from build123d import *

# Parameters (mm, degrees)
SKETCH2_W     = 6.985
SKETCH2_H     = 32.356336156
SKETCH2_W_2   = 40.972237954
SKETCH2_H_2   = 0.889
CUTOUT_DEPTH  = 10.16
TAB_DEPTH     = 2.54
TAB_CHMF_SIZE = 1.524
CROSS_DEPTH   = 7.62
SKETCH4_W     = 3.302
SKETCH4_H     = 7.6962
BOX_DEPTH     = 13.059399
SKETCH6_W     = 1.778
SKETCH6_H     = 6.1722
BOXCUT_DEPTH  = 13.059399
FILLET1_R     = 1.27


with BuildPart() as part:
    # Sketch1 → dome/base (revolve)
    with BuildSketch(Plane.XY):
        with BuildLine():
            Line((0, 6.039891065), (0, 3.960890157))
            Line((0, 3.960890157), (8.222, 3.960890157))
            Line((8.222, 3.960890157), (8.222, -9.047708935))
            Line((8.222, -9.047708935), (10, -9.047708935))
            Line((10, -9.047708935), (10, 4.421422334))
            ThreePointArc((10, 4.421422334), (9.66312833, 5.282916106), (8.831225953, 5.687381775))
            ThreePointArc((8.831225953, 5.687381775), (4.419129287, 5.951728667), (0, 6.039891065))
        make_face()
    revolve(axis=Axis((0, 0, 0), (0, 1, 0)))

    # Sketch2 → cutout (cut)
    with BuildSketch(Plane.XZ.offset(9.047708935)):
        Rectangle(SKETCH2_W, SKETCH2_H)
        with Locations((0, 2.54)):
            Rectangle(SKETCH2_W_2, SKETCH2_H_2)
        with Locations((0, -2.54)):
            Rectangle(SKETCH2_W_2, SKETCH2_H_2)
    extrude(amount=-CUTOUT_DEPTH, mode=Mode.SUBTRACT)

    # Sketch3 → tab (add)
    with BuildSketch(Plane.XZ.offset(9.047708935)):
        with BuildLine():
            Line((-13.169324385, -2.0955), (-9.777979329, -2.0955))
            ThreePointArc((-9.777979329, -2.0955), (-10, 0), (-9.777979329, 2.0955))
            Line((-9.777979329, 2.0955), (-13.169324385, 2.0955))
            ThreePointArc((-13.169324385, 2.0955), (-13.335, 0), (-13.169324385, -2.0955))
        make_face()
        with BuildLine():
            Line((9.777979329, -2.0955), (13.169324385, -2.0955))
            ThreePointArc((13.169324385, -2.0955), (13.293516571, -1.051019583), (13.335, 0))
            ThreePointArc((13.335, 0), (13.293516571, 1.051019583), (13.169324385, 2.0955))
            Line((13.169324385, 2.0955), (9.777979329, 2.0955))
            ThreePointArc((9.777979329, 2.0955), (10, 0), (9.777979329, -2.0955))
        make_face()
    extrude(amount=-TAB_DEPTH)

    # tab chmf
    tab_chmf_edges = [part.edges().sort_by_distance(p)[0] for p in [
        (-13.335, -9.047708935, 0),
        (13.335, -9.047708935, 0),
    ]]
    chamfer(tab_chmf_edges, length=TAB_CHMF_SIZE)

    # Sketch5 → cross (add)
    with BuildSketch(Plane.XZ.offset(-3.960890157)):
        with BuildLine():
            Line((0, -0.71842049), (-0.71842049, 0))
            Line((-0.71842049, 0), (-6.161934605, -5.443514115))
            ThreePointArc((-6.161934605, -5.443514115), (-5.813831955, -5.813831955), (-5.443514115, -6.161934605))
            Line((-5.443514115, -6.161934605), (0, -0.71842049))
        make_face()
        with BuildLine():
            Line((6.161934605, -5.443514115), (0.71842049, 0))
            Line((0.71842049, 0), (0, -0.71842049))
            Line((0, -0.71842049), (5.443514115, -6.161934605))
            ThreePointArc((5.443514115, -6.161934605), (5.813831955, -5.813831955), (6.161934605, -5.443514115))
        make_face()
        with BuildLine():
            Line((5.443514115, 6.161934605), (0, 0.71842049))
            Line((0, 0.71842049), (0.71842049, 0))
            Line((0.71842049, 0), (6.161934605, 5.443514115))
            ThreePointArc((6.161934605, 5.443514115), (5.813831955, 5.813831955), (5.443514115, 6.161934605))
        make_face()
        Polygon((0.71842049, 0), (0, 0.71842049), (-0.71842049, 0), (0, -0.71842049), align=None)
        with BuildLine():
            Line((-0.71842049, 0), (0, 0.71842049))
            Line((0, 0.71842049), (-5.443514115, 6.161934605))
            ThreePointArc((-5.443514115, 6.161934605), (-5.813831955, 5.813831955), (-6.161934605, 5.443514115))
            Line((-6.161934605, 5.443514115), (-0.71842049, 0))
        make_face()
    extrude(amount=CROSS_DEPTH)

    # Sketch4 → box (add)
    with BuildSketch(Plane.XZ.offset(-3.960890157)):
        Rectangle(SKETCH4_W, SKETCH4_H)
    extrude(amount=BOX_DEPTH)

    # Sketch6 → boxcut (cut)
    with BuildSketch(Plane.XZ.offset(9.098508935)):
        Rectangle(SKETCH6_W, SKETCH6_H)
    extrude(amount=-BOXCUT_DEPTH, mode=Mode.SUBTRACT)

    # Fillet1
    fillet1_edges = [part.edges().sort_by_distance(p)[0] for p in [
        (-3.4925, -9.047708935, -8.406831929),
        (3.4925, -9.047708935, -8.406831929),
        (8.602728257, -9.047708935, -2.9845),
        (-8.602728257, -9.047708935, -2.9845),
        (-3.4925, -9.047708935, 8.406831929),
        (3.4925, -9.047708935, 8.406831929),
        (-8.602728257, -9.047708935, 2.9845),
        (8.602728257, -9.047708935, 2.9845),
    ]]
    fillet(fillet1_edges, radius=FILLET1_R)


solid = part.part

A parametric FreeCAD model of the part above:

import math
import FreeCAD as App
import Part
import Sketcher

V = App.Vector
Q = App.Units.Quantity


def edges_at(feature, points):
    """Names of the edges that pass closest to the given points."""
    edges = feature.Shape.Edges
    near = lambda p: min(range(len(edges)), key=lambda i: edges[i].distToShape(Part.Vertex(*p))[0])
    return sorted({f"Edge{near(p) + 1}" for p in points})


def add_polygon(sketch, points):
    """Adds a closed chain of lines whose ends are joined by coincident constraints."""
    first, n = sketch.GeometryCount, len(points)
    for a, b in zip(points, points[1:] + points[:1]):
        sketch.addGeometry(Part.LineSegment(App.Vector(*a, 0), App.Vector(*b, 0)), False)
    for i in range(n):
        sketch.addConstraint(Sketcher.Constraint("Coincident", first + i, 2, first + (i + 1) % n, 1))

doc = App.newDocument("Part")
body = doc.addObject("PartDesign::Body", "Body")

sketch1 = doc.addObject("Sketcher::SketchObject", "Sketch")
body.addObject(sketch1)
sketch1.AttachmentSupport = (doc.XY_Plane, [""])
sketch1.MapMode = "FlatFace"
sketch1.addGeometry([
    Part.LineSegment(V(0, 6, 0), V(0, 4, 0)),
    Part.LineSegment(V(0, 4, 0), V(8.2, 4, 0)),
    Part.LineSegment(V(8.2, 4, 0), V(8.2, -9, 0)),
    Part.LineSegment(V(8.2, -9, 0), V(10, -9, 0)),
    Part.LineSegment(V(10, -9, 0), V(10, 4.4, 0)),
    Part.ArcOfCircle(Part.Circle(V(8.7, 4.4, 0), V(0, 0, 1), 1.3), math.radians(0), math.radians(85)),
    Part.ArcOfCircle(Part.Circle(V(0, -104.8, 0), V(0, 0, 1), 110.8), math.radians(85.43), math.radians(90)),
], False)
sketch1.addConstraint([
    Sketcher.Constraint("Coincident", 0, 2, 1, 1),
    Sketcher.Constraint("Coincident", 1, 2, 2, 1),
    Sketcher.Constraint("Coincident", 2, 2, 3, 1),
    Sketcher.Constraint("Coincident", 3, 2, 4, 1),
    Sketcher.Constraint("Tangent", 4, 2, 5, 1),
    Sketcher.Constraint("Tangent", 5, 2, 6, 1),
    Sketcher.Constraint("Coincident", 6, 2, 0, 1),
    Sketcher.Constraint("Vertical", 0),
    Sketcher.Constraint("Horizontal", 1),
    Sketcher.Constraint("Vertical", 2),
    Sketcher.Constraint("Horizontal", 3),
    Sketcher.Constraint("Vertical", 4),
    Sketcher.Constraint("PointOnObject", 6, 3, -2),
    Sketcher.Constraint("PointOnObject", 0, 2, -2),
    Sketcher.Constraint("Radius", 5, Q("0.05 in")),
    Sketcher.Constraint("DistanceX", 3, 1, 3, 2, Q("0.07 in")),
    Sketcher.Constraint("DistanceX", 1, 1, 1, 2, Q("8.222 mm")),
    Sketcher.Constraint("DistanceY", 0, 2, 0, 1, Q("2.079001 mm")),
    Sketcher.Constraint("DistanceY", 2, 2, 2, 1, Q("13.008599 mm")),
    Sketcher.Constraint("Radius", 6, Q("110.798235 mm")),
    Sketcher.Constraint("DistanceY", -1, 1, 0, 2, Q("3.96089 mm")),
])
revolution = doc.addObject("PartDesign::Revolution", "Revolution")
body.addObject(revolution)
revolution.Profile = sketch1
revolution.ReferenceAxis = (sketch1, ["V_Axis"])
revolution.Angle = 360

sketch2 = doc.addObject("Sketcher::SketchObject", "Sketch001")
body.addObject(sketch2)
sketch2.AttachmentSupport = (doc.XZ_Plane, [""])
sketch2.MapMode = "FlatFace"
sketch2.AttachmentOffset = App.Placement(V(0, 0, 9.047709), App.Rotation())
add_polygon(sketch2, [(-3.5, -3), (-3.5, -16.2), (3.5, -16.2), (3.5, -3), (20.5, -3), (20.5, -2.1), (3.5, -2.1), (3.5, 2.1), (20.5, 2.1), (20.5, 3), (3.5, 3), (3.5, 16.2), (-3.5, 16.2), (-3.5, 3), (-20.5, 3), (-20.5, 2.1), (-3.5, 2.1), (-3.5, -2.1), (-20.5, -2.1), (-20.5, -3)])
sketch2.addConstraint([
    Sketcher.Constraint("Vertical", 0),
    Sketcher.Constraint("Horizontal", 1),
    Sketcher.Constraint("Vertical", 2),
    Sketcher.Constraint("Horizontal", 3),
    Sketcher.Constraint("Vertical", 4),
    Sketcher.Constraint("Horizontal", 5),
    Sketcher.Constraint("Vertical", 6),
    Sketcher.Constraint("Horizontal", 7),
    Sketcher.Constraint("Vertical", 8),
    Sketcher.Constraint("Horizontal", 9),
    Sketcher.Constraint("Vertical", 10),
    Sketcher.Constraint("Horizontal", 11),
    Sketcher.Constraint("Vertical", 12),
    Sketcher.Constraint("Horizontal", 13),
    Sketcher.Constraint("Vertical", 14),
    Sketcher.Constraint("Horizontal", 15),
    Sketcher.Constraint("Vertical", 16),
    Sketcher.Constraint("Horizontal", 17),
    Sketcher.Constraint("Vertical", 18),
    Sketcher.Constraint("Horizontal", 19),
    Sketcher.Constraint("Symmetric", 0, 2, 10, 2, -1, 1),
    Sketcher.Constraint("Symmetric", 2, 2, 12, 2, -1, 1),
    Sketcher.Constraint("Symmetric", 4, 2, 14, 2, -1, 1),
    Sketcher.Constraint("Symmetric", 6, 2, 16, 2, -1, 1),
    Sketcher.Constraint("Symmetric", 8, 2, 18, 2, -1, 1),
    Sketcher.Constraint("Symmetric", 9, 2, 12, 2, -2),
    Sketcher.Constraint("Symmetric", 7, 2, 14, 2, -2),
    Sketcher.Constraint("Vertical", 2, 2, 5, 2),
    Sketcher.Constraint("DistanceY", 2, 2, 6, 2, Q("0.2 in")),
    Sketcher.Constraint("DistanceX", 1, 1, 1, 2, Q("0.275 in")),
    Sketcher.Constraint("DistanceY", 4, 1, 4, 2, Q("0.035 in")),
    Sketcher.Constraint("DistanceX", 3, 1, 3, 2, Q("16.993619 mm")),
    Sketcher.Constraint("DistanceY", 0, 2, 0, 1, Q("13.193668 mm")),
])
pocket1 = doc.addObject("PartDesign::Pocket", "Pocket")
body.addObject(pocket1)
pocket1.Profile = sketch2
pocket1.Length = Q("0.4 in")

sketch3 = doc.addObject("Sketcher::SketchObject", "Sketch002")
body.addObject(sketch3)
sketch3.AttachmentSupport = (doc.XZ_Plane, [""])
sketch3.MapMode = "FlatFace"
sketch3.AttachmentOffset = App.Placement(V(0, 0, 9.047709), App.Rotation())
sketch3.addGeometry([
    Part.LineSegment(V(-13.2, -2.1, 0), V(-9.8, -2.1, 0)),
    Part.ArcOfCircle(Part.Circle(V(0, 0, 0), V(0, 0, 1), 10), math.radians(168), math.radians(192)),
    Part.LineSegment(V(-9.8, 2.1, 0), V(-13.2, 2.1, 0)),
    Part.ArcOfCircle(Part.Circle(V(0, 0, 0), V(0, 0, 1), 13.3), math.radians(170.96), math.radians(189.04)),
    Part.LineSegment(V(9.8, -2.1, 0), V(13.2, -2.1, 0)),
    Part.ArcOfCircle(Part.Circle(V(0, 0, 0), V(0, 0, 1), 13.3), math.radians(-9.04), math.radians(0)),
    Part.ArcOfCircle(Part.Circle(V(0, 0, 0), V(0, 0, 1), 13.3), math.radians(0), math.radians(9.04)),
    Part.LineSegment(V(13.2, 2.1, 0), V(9.8, 2.1, 0)),
    Part.ArcOfCircle(Part.Circle(V(0, 0, 0), V(0, 0, 1), 10), math.radians(-12), math.radians(12)),
], False)
sketch3.addConstraint([
    Sketcher.Constraint("Coincident", 0, 2, 1, 2),
    Sketcher.Constraint("Coincident", 1, 1, 2, 1),
    Sketcher.Constraint("Coincident", 2, 2, 3, 1),
    Sketcher.Constraint("Coincident", 3, 2, 0, 1),
    Sketcher.Constraint("Coincident", 4, 2, 5, 1),
    Sketcher.Constraint("Tangent", 5, 2, 6, 1),
    Sketcher.Constraint("Coincident", 6, 2, 7, 1),
    Sketcher.Constraint("Coincident", 7, 2, 8, 2),
    Sketcher.Constraint("Coincident", 8, 1, 4, 1),
    Sketcher.Constraint("Horizontal", 0),
    Sketcher.Constraint("Horizontal", 2),
    Sketcher.Constraint("Horizontal", 4),
    Sketcher.Constraint("Horizontal", 7),
    Sketcher.Constraint("Coincident", 1, 3, -1, 1),
    Sketcher.Constraint("Coincident", 3, 3, -1, 1),
    Sketcher.Constraint("Coincident", 5, 3, -1, 1),
    Sketcher.Constraint("Coincident", 8, 3, -1, 1),
    Sketcher.Constraint("Equal", 3, 5),
    Sketcher.Constraint("Equal", 5, 6),
    Sketcher.Constraint("Equal", 1, 8),
    Sketcher.Constraint("PointOnObject", 5, 2, -1),
    Sketcher.Constraint("Horizontal", 3, 2, 4, 2),
    Sketcher.Constraint("Horizontal", 2, 2, 6, 2),
    Sketcher.Constraint("Vertical", 0, 2, 1, 1),
    Sketcher.Constraint("Radius", 3, Q("0.525 in")),
    Sketcher.Constraint("Radius", 1, Q("10 mm")),
    Sketcher.Constraint("DistanceY", 0, 2, 1, 1, Q("0.165 in")),
])
pad1 = doc.addObject("PartDesign::Pad", "Pad")
body.addObject(pad1)
pad1.Profile = sketch3
pad1.Length = Q("0.1 in")
pad1.Reversed = True
doc.recompute()

chamfer = doc.addObject("PartDesign::Chamfer", "Chamfer")
body.addObject(chamfer)
chamfer.Base = (pad1, edges_at(pad1, [(-13.335, -9.048, 0), (13.294, -9.048, -1.051)]))
chamfer.Size = Q("0.06 in")

sketch4 = doc.addObject("Sketcher::SketchObject", "Sketch003")
body.addObject(sketch4)
sketch4.AttachmentSupport = (doc.XZ_Plane, [""])
sketch4.MapMode = "FlatFace"
sketch4.AttachmentOffset = App.Placement(V(0, 0, -3.96089), App.Rotation())
sketch4.addGeometry([
    Part.ArcOfCircle(Part.Circle(V(0, 0, 0), V(0, 0, 1), 8.2), math.radians(-138.54), math.radians(-131.46)),
    Part.LineSegment(V(-5.4, -6.2, 0), V(0, -0.7, 0)),
    Part.LineSegment(V(0, -0.7, 0), V(5.4, -6.2, 0)),
    Part.ArcOfCircle(Part.Circle(V(0, 0, 0), V(0, 0, 1), 8.2), math.radians(-48.54), math.radians(-41.46)),
    Part.LineSegment(V(6.2, -5.4, 0), V(0.7, 0, 0)),
    Part.LineSegment(V(0.7, 0, 0), V(6.2, 5.4, 0)),
    Part.ArcOfCircle(Part.Circle(V(0, 0, 0), V(0, 0, 1), 8.2), math.radians(41.46), math.radians(48.54)),
    Part.LineSegment(V(5.4, 6.2, 0), V(0, 0.7, 0)),
    Part.LineSegment(V(0, 0.7, 0), V(-5.4, 6.2, 0)),
    Part.ArcOfCircle(Part.Circle(V(0, 0, 0), V(0, 0, 1), 8.2), math.radians(131.46), math.radians(138.54)),
    Part.LineSegment(V(-6.2, 5.4, 0), V(-0.7, 0, 0)),
    Part.LineSegment(V(-0.7, 0, 0), V(-6.2, -5.4, 0)),
], False)
sketch4.addConstraint([
    Sketcher.Constraint("Coincident", 0, 2, 1, 1),
    Sketcher.Constraint("Coincident", 1, 2, 2, 1),
    Sketcher.Constraint("Coincident", 2, 2, 3, 1),
    Sketcher.Constraint("Coincident", 3, 2, 4, 1),
    Sketcher.Constraint("Coincident", 4, 2, 5, 1),
    Sketcher.Constraint("Coincident", 5, 2, 6, 1),
    Sketcher.Constraint("Coincident", 6, 2, 7, 1),
    Sketcher.Constraint("Coincident", 7, 2, 8, 1),
    Sketcher.Constraint("Coincident", 8, 2, 9, 1),
    Sketcher.Constraint("Coincident", 9, 2, 10, 1),
    Sketcher.Constraint("Coincident", 10, 2, 11, 1),
    Sketcher.Constraint("Coincident", 11, 2, 0, 1),
    Sketcher.Constraint("Coincident", 0, 3, -1, 1),
    Sketcher.Constraint("Coincident", 3, 3, -1, 1),
    Sketcher.Constraint("Coincident", 6, 3, -1, 1),
    Sketcher.Constraint("Coincident", 9, 3, -1, 1),
    Sketcher.Constraint("Equal", 0, 3),
    Sketcher.Constraint("Equal", 3, 6),
    Sketcher.Constraint("Equal", 6, 9),
    Sketcher.Constraint("Symmetric", 1, 2, 7, 2, -1, 1),
    Sketcher.Constraint("Symmetric", 4, 2, 10, 2, -1, 1),
    Sketcher.Constraint("PointOnObject", 1, 2, -2),
    Sketcher.Constraint("PointOnObject", 4, 2, -1),
    Sketcher.Constraint("Perpendicular", 1, 2),
    Sketcher.Constraint("Parallel", 2, 4),
    Sketcher.Constraint("Perpendicular", 4, 5),
    Sketcher.Constraint("Parallel", 5, 7),
    Sketcher.Constraint("Perpendicular", 7, 8),
    Sketcher.Constraint("Parallel", 8, 10),
    Sketcher.Constraint("Perpendicular", 10, 11),
    Sketcher.Constraint("Horizontal", 0, 2, 2, 2),
    Sketcher.Constraint("Equal", 2, 4),
    Sketcher.Constraint("Radius", 0, Q("8.222 mm")),
    Sketcher.Constraint("Distance", 1, Q("7.698291 mm")),
])
pad2 = doc.addObject("PartDesign::Pad", "Pad001")
body.addObject(pad2)
pad2.Profile = sketch4
pad2.Length = Q("0.3 in")

sketch5 = doc.addObject("Sketcher::SketchObject", "Sketch004")
body.addObject(sketch5)
sketch5.AttachmentSupport = (doc.XZ_Plane, [""])
sketch5.MapMode = "FlatFace"
sketch5.AttachmentOffset = App.Placement(V(0, 0, -3.96089), App.Rotation())
add_polygon(sketch5, [(-1.7, 3.8), (-1.7, -3.8), (1.7, -3.8), (1.7, 3.8)])
sketch5.addConstraint([
    Sketcher.Constraint("Vertical", 0),
    Sketcher.Constraint("Horizontal", 1),
    Sketcher.Constraint("Vertical", 2),
    Sketcher.Constraint("Horizontal", 3),
    Sketcher.Constraint("Symmetric", 0, 2, 2, 2, -1, 1),
    Sketcher.Constraint("DistanceX", 1, 1, 1, 2, Q("0.13 in")),
    Sketcher.Constraint("DistanceY", 0, 2, 0, 1, Q("0.303 in")),
])
pad3 = doc.addObject("PartDesign::Pad", "Pad002")
body.addObject(pad3)
pad3.Profile = sketch5
pad3.Length = 13.059399

sketch6 = doc.addObject("Sketcher::SketchObject", "Sketch005")
body.addObject(sketch6)
sketch6.AttachmentSupport = (doc.XZ_Plane, [""])
sketch6.MapMode = "FlatFace"
sketch6.AttachmentOffset = App.Placement(V(0, 0, 9.098509), App.Rotation())
add_polygon(sketch6, [(-0.9, 3.1), (-0.9, -3.1), (0.9, -3.1), (0.9, 3.1)])
sketch6.addConstraint([
    Sketcher.Constraint("Vertical", 0),
    Sketcher.Constraint("Horizontal", 1),
    Sketcher.Constraint("Vertical", 2),
    Sketcher.Constraint("Horizontal", 3),
    Sketcher.Constraint("Symmetric", 0, 2, 2, 2, -1, 1),
    Sketcher.Constraint("DistanceX", 1, 1, 1, 2, Q("0.07 in")),
    Sketcher.Constraint("DistanceY", 0, 2, 0, 1, Q("0.243 in")),
])
pocket2 = doc.addObject("PartDesign::Pocket", "Pocket001")
body.addObject(pocket2)
pocket2.Profile = sketch6
pocket2.Length = 13.059399
doc.recompute()

fillet = doc.addObject("PartDesign::Fillet", "Fillet")
body.addObject(fillet)
fillet.Base = (pocket2, edges_at(pocket2, [
    (-3.493, -9.048, -8.407),
    (3.493, -9.048, -8.407),
    (8.603, -9.048, -2.985),
    (-8.603, -9.048, -2.985),
    (-3.493, -9.048, 8.407),
    (3.493, -9.048, 8.407),
    (-8.603, -9.048, 2.985),
    (8.603, -9.048, 2.985),
]))
fillet.Radius = Q("0.05 in")

doc.recompute()
